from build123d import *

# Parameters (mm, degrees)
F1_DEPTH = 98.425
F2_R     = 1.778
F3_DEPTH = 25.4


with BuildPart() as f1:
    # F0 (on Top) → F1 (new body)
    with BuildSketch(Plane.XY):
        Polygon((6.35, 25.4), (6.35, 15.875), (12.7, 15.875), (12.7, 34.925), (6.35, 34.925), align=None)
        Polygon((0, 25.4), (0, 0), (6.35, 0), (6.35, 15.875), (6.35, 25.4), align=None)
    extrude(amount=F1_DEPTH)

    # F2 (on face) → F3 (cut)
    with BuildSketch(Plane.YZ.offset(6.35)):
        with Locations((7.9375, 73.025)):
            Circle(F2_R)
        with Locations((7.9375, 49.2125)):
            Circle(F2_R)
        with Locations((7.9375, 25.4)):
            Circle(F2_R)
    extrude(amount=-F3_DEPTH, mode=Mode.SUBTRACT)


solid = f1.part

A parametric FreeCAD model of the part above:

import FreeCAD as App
import Part
import Sketcher

V = App.Vector
Q = App.Units.Quantity


def add_polygon(sketch, points):
    """Adds a closed chain of lines whose ends are joined by coincident constraints."""
    first, n = sketch.GeometryCount, len(points)
    for a, b in zip(points, points[1:] + points[:1]):
        sketch.addGeometry(Part.LineSegment(App.Vector(*a, 0), App.Vector(*b, 0)), False)
    for i in range(n):
        sketch.addConstraint(Sketcher.Constraint("Coincident", first + i, 2, first + (i + 1) % n, 1))

doc = App.newDocument("Part")
body = doc.addObject("PartDesign::Body", "Body")

# Sketch on XY plane
sketch1 = doc.addObject("Sketcher::SketchObject", "Sketch")
body.addObject(sketch1)
sketch1.AttachmentSupport = (doc.XY_Plane, [""])
sketch1.MapMode = "FlatFace"
add_polygon(sketch1, [(6, 16), (13, 16), (13, 35), (6, 35), (6, 25), (0, 25), (0, 0), (6, 0)])  # lines 0-7
sketch1.addConstraint([
    Sketcher.Constraint("Horizontal", 0),
    Sketcher.Constraint("Vertical", 1),
    Sketcher.Constraint("Horizontal", 2),
    Sketcher.Constraint("Vertical", 3),
    Sketcher.Constraint("Horizontal", 4),
    Sketcher.Constraint("Vertical", 5),
    Sketcher.Constraint("Horizontal", 6),
    Sketcher.Constraint("Vertical", 7),
    Sketcher.Constraint("Coincident", 5, 2, -1, 1),
    Sketcher.Constraint("Vertical", 3, 2, 6, 2),
    Sketcher.Constraint("Equal", 2, 4),
    Sketcher.Constraint("DistanceY", 5, 2, 5, 1, Q("1 in")),
    Sketcher.Constraint("DistanceX", 0, 1, 0, 2, Q("0.25 in")),
    Sketcher.Constraint("DistanceY", 1, 1, 1, 2, Q("0.75 in")),
    Sketcher.Constraint("DistanceY", 3, 2, 3, 1, Q("0.375 in")),
])
pad1 = doc.addObject("PartDesign::Pad", "Pad")
body.addObject(pad1)
pad1.Profile = sketch1
pad1.Length = Q("3.875 in")

# Sketch on YZ plane
sketch2 = doc.addObject("Sketcher::SketchObject", "Sketch001")
body.addObject(sketch2)
sketch2.AttachmentSupport = (doc.YZ_Plane, [""])
sketch2.MapMode = "FlatFace"
sketch2.AttachmentOffset = App.Placement(V(0, 0, 0.25 * 25.4), App.Rotation())
sketch2.addGeometry([
    Part.Circle(V(7.9, 73, 0), V(0, 0, 1), 1.8),
    Part.Circle(V(7.9, 49.2, 0), V(0, 0, 1), 1.8),
    Part.Circle(V(7.9, 25.4, 0), V(0, 0, 1), 1.8),
], False)
sketch2.addConstraint([
    Sketcher.Constraint("Equal", 0, 1),
    Sketcher.Constraint("Equal", 1, 2),
    Sketcher.Constraint("Vertical", 0, 3, 1, 3),
    Sketcher.Constraint("Vertical", 1, 3, 2, 3),
    Sketcher.Constraint("Diameter", 0, Q("0.14 in")),
    Sketcher.Constraint("DistanceY", -1, 1, 2, 3, Q("1 in")),
    Sketcher.Constraint("DistanceX", -1, 1, 0, 3, Q("0.3125 in")),
    Sketcher.Constraint("DistanceY", -1, 1, 0, 3, Q("2.875 in")),
    Sketcher.Constraint("DistanceY", -1, 1, 1, 3, Q("1.9375 in")),
])
pocket1 = doc.addObject("PartDesign::Pocket", "Pocket")
body.addObject(pocket1)
pocket1.Profile = sketch2
pocket1.Length = Q("1 in")

doc.recompute()
